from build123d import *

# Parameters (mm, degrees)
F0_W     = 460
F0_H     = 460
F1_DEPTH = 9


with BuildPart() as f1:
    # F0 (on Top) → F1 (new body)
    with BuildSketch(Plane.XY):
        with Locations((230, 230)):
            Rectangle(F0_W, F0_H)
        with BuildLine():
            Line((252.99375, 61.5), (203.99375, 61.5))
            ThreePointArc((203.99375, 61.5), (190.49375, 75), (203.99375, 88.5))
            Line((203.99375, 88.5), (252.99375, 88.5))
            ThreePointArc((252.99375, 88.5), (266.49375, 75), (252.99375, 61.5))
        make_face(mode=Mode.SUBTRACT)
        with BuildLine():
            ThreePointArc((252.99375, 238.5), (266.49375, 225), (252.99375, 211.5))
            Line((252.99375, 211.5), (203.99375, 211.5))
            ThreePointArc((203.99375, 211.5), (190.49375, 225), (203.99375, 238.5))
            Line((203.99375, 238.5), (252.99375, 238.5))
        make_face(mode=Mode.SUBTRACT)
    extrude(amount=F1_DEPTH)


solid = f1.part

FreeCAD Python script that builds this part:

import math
import FreeCAD as App
import Part
import Sketcher

V = App.Vector
Q = App.Units.Quantity


def add_polygon(sketch, points):
    """Adds a closed chain of lines whose ends are joined by coincident constraints."""
    first, n = sketch.GeometryCount, len(points)
    for a, b in zip(points, points[1:] + points[:1]):
        sketch.addGeometry(Part.LineSegment(App.Vector(*a, 0), App.Vector(*b, 0)), False)
    for i in range(n):
        sketch.addConstraint(Sketcher.Constraint("Coincident", first + i, 2, first + (i + 1) % n, 1))

doc = App.newDocument("Part")
params = doc.addObject("Spreadsheet::Sheet", "Params")
for row, (alias, value) in enumerate([
    ("sketch1_radius", "13.5 mm"),
    ("sketch1_width", "460 mm"),
    ("sketch1_width2", "49 mm"),
    ("pad1_length", "9 mm"),
], start=1):
    params.set(f"A{row}", alias)
    params.set(f"B{row}", "=" + value)
    params.setAlias(f"B{row}", alias)

body = doc.addObject("PartDesign::Body", "Body")

# Sketch on XY plane
sketch1 = body.newObject("Sketcher::SketchObject", "Sketch")
sketch1.AttachmentSupport = (doc.getObject("XY_Plane"), [""])
sketch1.MapMode = "FlatFace"
add_polygon(sketch1, [(0, 460), (0, 0), (460, 0), (460, 460)])  # lines 0-3
sketch1.addGeometry(Part.ArcOfCircle(Part.Circle(V(253, 75, 0), V(0, 0, 1), 14), math.radians(-90), math.radians(90)), False)  # 4
sketch1.addGeometry(Part.LineSegment(V(253, 62, 0), V(204, 62, 0)), False)  # 5
sketch1.addGeometry(Part.ArcOfCircle(Part.Circle(V(204, 75, 0), V(0, 0, 1), 14), math.radians(90), math.radians(270)), False)  # 6
sketch1.addGeometry(Part.LineSegment(V(204, 88, 0), V(253, 88, 0)), False)  # 7
sketch1.addGeometry(Part.LineSegment(V(204, 238, 0), V(253, 238, 0)), False)  # 8
sketch1.addGeometry(Part.ArcOfCircle(Part.Circle(V(253, 225, 0), V(0, 0, 1), 14), math.radians(-90), math.radians(90)), False)  # 9
sketch1.addGeometry(Part.LineSegment(V(253, 212, 0), V(204, 212, 0)), False)  # 10
sketch1.addGeometry(Part.ArcOfCircle(Part.Circle(V(204, 225, 0), V(0, 0, 1), 14), math.radians(90), math.radians(270)), False)  # 11
sketch1.addConstraint([
    Sketcher.Constraint("Tangent", 4, 1, 5, 1),
    Sketcher.Constraint("Tangent", 5, 2, 6, 2),
    Sketcher.Constraint("Tangent", 6, 1, 7, 1),
    Sketcher.Constraint("Tangent", 7, 2, 4, 2),
    Sketcher.Constraint("Tangent", 8, 2, 9, 2),
    Sketcher.Constraint("Tangent", 9, 1, 10, 1),
    Sketcher.Constraint("Tangent", 10, 2, 11, 2),
    Sketcher.Constraint("Tangent", 11, 1, 8, 1),
    Sketcher.Constraint("Vertical", 0),
    Sketcher.Constraint("Horizontal", 1),
    Sketcher.Constraint("Vertical", 2),
    Sketcher.Constraint("Horizontal", 3),
    Sketcher.Constraint("Horizontal", 5),
    Sketcher.Constraint("Horizontal", 7),
    Sketcher.Constraint("Horizontal", 8),
    Sketcher.Constraint("Horizontal", 10),
    Sketcher.Constraint("Coincident", 0, 2, -1, 1),
    Sketcher.Constraint("Equal", 6, 9),
    Sketcher.Constraint("Vertical", 4, 3, 9, 3),
    Sketcher.Constraint("Vertical", 6, 3, 11, 3),
    Sketcher.Constraint("Equal", 3, 0),
    Sketcher.Constraint("Radius", 4, Q("13.5 mm")),
    Sketcher.Constraint("DistanceX", 1, 1, 1, 2, Q("460 mm")),
    Sketcher.Constraint("DistanceX", 5, 2, 5, 1, Q("49 mm")),
    Sketcher.Constraint("DistanceY", -1, 1, 4, 3, Q("75 mm")),
    Sketcher.Constraint("DistanceY", -1, 1, 9, 3, Q("225 mm")),
    Sketcher.Constraint("DistanceX", -1, 1, 4, 3, Q("252.99375 mm")),
])
sketch1.setExpression("Constraints[25]", "Params.sketch1_radius")
sketch1.setExpression("Constraints[26]", "Params.sketch1_width")
sketch1.setExpression("Constraints[27]", "Params.sketch1_width2")
pad1 = body.newObject("PartDesign::Pad", "Pad")
pad1.Profile = sketch1
pad1.setExpression("Length", "Params.pad1_length")

doc.recompute()
